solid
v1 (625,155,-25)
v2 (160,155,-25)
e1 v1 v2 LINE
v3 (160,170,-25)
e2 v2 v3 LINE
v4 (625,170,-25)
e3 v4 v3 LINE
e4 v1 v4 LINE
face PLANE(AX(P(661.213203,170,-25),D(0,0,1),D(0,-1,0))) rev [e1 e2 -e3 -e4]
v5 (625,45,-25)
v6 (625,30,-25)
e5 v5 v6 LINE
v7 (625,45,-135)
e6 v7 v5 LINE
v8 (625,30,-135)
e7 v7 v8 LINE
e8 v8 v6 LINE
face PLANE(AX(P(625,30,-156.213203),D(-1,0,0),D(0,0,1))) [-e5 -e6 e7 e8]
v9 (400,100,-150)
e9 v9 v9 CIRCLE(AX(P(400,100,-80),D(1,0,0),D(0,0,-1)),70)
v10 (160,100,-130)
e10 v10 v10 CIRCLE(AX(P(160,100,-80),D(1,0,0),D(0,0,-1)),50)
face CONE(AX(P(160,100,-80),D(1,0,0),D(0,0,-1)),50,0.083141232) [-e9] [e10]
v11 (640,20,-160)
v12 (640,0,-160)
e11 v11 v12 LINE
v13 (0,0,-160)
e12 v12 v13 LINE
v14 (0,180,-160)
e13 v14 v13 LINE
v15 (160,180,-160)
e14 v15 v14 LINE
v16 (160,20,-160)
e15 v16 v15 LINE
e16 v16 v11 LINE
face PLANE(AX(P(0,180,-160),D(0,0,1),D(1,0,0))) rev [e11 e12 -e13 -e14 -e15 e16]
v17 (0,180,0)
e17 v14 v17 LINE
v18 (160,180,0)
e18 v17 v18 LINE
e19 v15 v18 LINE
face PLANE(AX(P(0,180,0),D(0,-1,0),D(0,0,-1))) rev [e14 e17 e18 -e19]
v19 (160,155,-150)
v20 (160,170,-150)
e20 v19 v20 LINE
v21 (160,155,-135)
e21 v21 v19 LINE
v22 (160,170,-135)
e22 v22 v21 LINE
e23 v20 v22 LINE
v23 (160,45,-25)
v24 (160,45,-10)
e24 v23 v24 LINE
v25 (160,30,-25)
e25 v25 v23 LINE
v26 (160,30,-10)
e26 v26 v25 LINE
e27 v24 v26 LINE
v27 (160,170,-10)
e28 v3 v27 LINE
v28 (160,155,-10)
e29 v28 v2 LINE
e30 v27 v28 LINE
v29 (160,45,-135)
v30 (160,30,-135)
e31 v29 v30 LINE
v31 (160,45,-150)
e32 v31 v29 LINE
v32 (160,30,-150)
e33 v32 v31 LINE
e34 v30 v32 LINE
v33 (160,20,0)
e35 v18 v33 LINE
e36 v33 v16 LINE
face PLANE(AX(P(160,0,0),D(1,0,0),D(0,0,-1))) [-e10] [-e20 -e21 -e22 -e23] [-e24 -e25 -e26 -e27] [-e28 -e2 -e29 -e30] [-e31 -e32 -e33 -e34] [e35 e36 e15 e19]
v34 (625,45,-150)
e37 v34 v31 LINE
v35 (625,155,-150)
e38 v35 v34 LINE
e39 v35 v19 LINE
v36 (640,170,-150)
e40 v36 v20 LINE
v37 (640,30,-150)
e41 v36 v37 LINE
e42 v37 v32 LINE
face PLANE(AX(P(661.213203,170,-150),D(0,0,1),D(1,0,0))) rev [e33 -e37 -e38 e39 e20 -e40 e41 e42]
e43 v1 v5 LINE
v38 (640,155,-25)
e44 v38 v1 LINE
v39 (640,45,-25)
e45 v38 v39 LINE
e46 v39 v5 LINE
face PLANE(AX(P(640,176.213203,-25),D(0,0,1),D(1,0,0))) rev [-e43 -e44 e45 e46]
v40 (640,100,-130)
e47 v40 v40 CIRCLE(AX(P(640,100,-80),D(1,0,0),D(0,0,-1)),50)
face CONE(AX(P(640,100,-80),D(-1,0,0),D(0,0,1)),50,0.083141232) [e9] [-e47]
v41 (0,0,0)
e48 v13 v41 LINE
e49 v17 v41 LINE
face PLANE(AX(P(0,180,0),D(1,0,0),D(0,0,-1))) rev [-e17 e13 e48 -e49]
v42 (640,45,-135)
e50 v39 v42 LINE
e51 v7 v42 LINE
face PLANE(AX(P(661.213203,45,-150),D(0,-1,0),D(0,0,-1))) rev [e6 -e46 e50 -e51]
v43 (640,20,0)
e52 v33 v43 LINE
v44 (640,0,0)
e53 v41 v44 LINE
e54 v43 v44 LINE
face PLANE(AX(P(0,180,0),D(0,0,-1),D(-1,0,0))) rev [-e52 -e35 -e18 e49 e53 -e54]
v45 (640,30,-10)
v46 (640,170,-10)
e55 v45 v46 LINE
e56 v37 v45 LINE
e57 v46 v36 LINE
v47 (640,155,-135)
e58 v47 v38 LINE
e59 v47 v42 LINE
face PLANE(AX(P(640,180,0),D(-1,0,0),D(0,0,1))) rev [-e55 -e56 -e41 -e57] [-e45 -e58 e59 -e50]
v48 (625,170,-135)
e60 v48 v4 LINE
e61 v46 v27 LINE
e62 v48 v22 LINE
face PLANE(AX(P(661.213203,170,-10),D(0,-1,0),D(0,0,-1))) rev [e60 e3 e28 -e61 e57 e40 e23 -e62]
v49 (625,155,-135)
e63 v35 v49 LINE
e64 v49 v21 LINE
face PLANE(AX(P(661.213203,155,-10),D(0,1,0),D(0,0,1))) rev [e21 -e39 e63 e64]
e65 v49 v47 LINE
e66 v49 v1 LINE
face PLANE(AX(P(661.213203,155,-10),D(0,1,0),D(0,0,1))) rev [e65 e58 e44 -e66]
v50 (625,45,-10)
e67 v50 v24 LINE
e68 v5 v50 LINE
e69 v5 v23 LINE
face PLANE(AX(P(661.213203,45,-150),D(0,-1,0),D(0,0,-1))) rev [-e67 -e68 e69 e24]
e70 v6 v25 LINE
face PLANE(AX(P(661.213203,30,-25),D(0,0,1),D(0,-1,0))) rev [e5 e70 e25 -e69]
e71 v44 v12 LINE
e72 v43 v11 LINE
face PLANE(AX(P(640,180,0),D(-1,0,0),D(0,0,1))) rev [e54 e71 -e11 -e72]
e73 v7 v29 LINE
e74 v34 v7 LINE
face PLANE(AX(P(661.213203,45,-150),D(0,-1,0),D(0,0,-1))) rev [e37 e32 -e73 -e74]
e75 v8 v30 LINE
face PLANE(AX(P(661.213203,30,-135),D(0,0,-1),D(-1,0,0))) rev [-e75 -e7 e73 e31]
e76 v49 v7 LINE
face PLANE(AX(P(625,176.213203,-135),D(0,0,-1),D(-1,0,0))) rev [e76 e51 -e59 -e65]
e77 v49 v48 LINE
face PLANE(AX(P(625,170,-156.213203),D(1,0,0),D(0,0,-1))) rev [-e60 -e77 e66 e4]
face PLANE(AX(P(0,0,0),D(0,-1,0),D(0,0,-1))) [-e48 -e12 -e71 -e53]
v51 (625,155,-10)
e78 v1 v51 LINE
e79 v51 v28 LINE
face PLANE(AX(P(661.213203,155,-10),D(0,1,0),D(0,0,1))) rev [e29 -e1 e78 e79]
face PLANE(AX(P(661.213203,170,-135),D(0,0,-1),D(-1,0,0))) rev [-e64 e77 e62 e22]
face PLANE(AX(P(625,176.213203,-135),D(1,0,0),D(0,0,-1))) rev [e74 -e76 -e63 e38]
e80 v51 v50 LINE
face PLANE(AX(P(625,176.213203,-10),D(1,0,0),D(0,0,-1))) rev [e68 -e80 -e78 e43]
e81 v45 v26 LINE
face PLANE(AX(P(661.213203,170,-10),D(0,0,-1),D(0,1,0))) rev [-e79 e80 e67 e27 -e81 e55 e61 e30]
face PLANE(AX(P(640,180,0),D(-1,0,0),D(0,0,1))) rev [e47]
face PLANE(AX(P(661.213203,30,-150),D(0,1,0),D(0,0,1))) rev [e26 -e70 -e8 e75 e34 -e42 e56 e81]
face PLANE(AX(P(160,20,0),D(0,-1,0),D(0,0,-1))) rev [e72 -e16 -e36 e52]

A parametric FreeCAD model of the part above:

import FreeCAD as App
import Part
import Sketcher

V = App.Vector
Q = App.Units.Quantity


def add_polygon(sketch, points):
    """Adds a closed chain of lines whose ends are joined by coincident constraints."""
    first, n = sketch.GeometryCount, len(points)
    for a, b in zip(points, points[1:] + points[:1]):
        sketch.addGeometry(Part.LineSegment(App.Vector(*a, 0), App.Vector(*b, 0)), False)
    for i in range(n):
        sketch.addConstraint(Sketcher.Constraint("Coincident", first + i, 2, first + (i + 1) % n, 1))

doc = App.newDocument("Part")
body = doc.addObject("PartDesign::Body", "Body")

# Sketch on XZ plane
sketch1 = body.newObject("Sketcher::SketchObject", "Sketch")
sketch1.AttachmentSupport = (doc.getObject("XZ_Plane"), [""])
sketch1.MapMode = "FlatFace"
add_polygon(sketch1, [(0, -160), (0, 0), (640, 0), (640, -160)])  # lines 0-3
sketch1.addConstraint(Sketcher.Constraint("Vertical", 0))
sketch1.addConstraint(Sketcher.Constraint("Horizontal", 1))
sketch1.addConstraint(Sketcher.Constraint("Vertical", 2))
sketch1.addConstraint(Sketcher.Constraint("Horizontal", 3))
sketch1.addConstraint(Sketcher.Constraint("Coincident", 0, 2, -1, 1))
sketch1.addConstraint(Sketcher.Constraint("DistanceX", 1, 1, 1, 2, Q("640 mm")))
sketch1.addConstraint(Sketcher.Constraint("DistanceY", 0, 1, 0, 2, Q("160 mm")))
pad1 = body.newObject("PartDesign::Pad", "Pad")
pad1.Profile = sketch1
pad1.Length = 180
pad1.Reversed = True

# Sketch on YZ plane
sketch2 = body.newObject("Sketcher::SketchObject", "Sketch001")
sketch2.AttachmentSupport = (doc.getObject("YZ_Plane"), [""])
sketch2.MapMode = "FlatFace"
sketch2.AttachmentOffset = App.Placement(V(0, 0, 640), App.Rotation())
add_polygon(sketch2, [(180, 0), (20, 0), (20, -160), (180, -160)])  # lines 0-3
sketch2.addConstraint(Sketcher.Constraint("Horizontal", 0))
sketch2.addConstraint(Sketcher.Constraint("Vertical", 1))
sketch2.addConstraint(Sketcher.Constraint("Horizontal", 2))
sketch2.addConstraint(Sketcher.Constraint("Vertical", 3))
sketch2.addConstraint(Sketcher.Constraint("PointOnObject", 0, 2, -1))
sketch2.addConstraint(Sketcher.Constraint("Equal", 2, 1))
sketch2.addConstraint(Sketcher.Constraint("DistanceX", 0, 2, 0, 1, Q("160 mm")))
sketch2.addConstraint(Sketcher.Constraint("DistanceX", -1, 1, 0, 2, Q("20 mm")))
pocket1 = body.newObject("PartDesign::Pocket", "Pocket")
pocket1.Profile = sketch2
pocket1.Length = 480

# Sketch on YZ plane
sketch3 = body.newObject("Sketcher::SketchObject", "Sketch002")
sketch3.AttachmentSupport = (doc.getObject("YZ_Plane"), [""])
sketch3.MapMode = "FlatFace"
sketch3.AttachmentOffset = App.Placement(V(0, 0, 160), App.Rotation())
sketch3.addGeometry(Part.Circle(V(100, -80, 0), V(0, 0, 1), 70), False)
sketch3.addConstraint(Sketcher.Constraint("Diameter", 0, Q("140 mm")))
sketch3.addConstraint(Sketcher.Constraint("DistanceX", -1, 1, 0, 3, Q("100 mm")))
sketch3.addConstraint(Sketcher.Constraint("DistanceY", 0, 3, -1, 1, Q("80 mm")))
pad2 = body.newObject("PartDesign::Pad", "Pad001")
pad2.Profile = sketch3
pad2.Length = 480

# Sketch on XY plane
sketch4 = body.newObject("Sketcher::SketchObject", "Sketch003")
sketch4.AttachmentSupport = (doc.getObject("XY_Plane"), [""])
sketch4.MapMode = "FlatFace"
sketch4.AttachmentOffset = App.Placement(V(0, 0, -80), App.Rotation())
add_polygon(sketch4, [(160, 170), (160, 150), (400, 170)])  # lines 0-2
add_polygon(sketch4, [(400, 170), (640, 150), (640, 170)])  # lines 3-5
sketch4.addGeometry(Part.LineSegment(V(640, 100, 0), V(160, 100, 0)), True)  # axis
sketch4.addConstraint(Sketcher.Constraint("Vertical", 0))
sketch4.addConstraint(Sketcher.Constraint("Horizontal", 2))
sketch4.addConstraint(Sketcher.Constraint("Vertical", 4))
sketch4.addConstraint(Sketcher.Constraint("Horizontal", 5))
sketch4.addConstraint(Sketcher.Constraint("Horizontal", 6))
sketch4.addConstraint(Sketcher.Constraint("Coincident", 5, 2, 1, 2))
sketch4.addConstraint(Sketcher.Constraint("Horizontal", 0, 2, 3, 2))
sketch4.addConstraint(Sketcher.Constraint("Vertical", 4, 2, 6, 1))
sketch4.addConstraint(Sketcher.Constraint("Vertical", 2, 2, 6, 2))
sketch4.addConstraint(Sketcher.Constraint("Equal", 2, 5))
sketch4.addConstraint(Sketcher.Constraint("DistanceX", 2, 2, 2, 1, Q("240 mm")))
sketch4.addConstraint(Sketcher.Constraint("DistanceY", 0, 2, 0, 1, Q("20 mm")))
sketch4.addConstraint(Sketcher.Constraint("DistanceX", -1, 1, 0, 2, Q("160 mm")))
sketch4.addConstraint(Sketcher.Constraint("DistanceY", -1, 1, 0, 2, Q("150 mm")))
sketch4.addConstraint(Sketcher.Constraint("DistanceY", -1, 1, 6, 1, Q("100 mm")))
groove = body.newObject("PartDesign::Groove", "Groove")
groove.Profile = sketch4
groove.ReferenceAxis = (sketch4, ["Axis0"])
groove.Angle = 360

# Sketch on YZ plane
sketch5 = body.newObject("Sketcher::SketchObject", "Sketch004")
sketch5.AttachmentSupport = (doc.getObject("YZ_Plane"), [""])
sketch5.MapMode = "FlatFace"
sketch5.AttachmentOffset = App.Placement(V(0, 0, 160), App.Rotation())
add_polygon(sketch5, [(170, -10), (155, -10), (155, -25), (170, -25)])  # lines 0-3
add_polygon(sketch5, [(170, -135), (155, -135), (155, -150), (170, -150)])  # lines 4-7
add_polygon(sketch5, [(45, -135), (30, -135), (30, -150), (45, -150)])  # lines 8-11
add_polygon(sketch5, [(45, -10), (30, -10), (30, -25), (45, -25)])  # lines 12-15
sketch5.addConstraint(Sketcher.Constraint("Horizontal", 0))
sketch5.addConstraint(Sketcher.Constraint("Vertical", 1))
sketch5.addConstraint(Sketcher.Constraint("Horizontal", 2))
sketch5.addConstraint(Sketcher.Constraint("Vertical", 3))
sketch5.addConstraint(Sketcher.Constraint("Horizontal", 4))
sketch5.addConstraint(Sketcher.Constraint("Vertical", 5))
sketch5.addConstraint(Sketcher.Constraint("Horizontal", 6))
sketch5.addConstraint(Sketcher.Constraint("Vertical", 7))
sketch5.addConstraint(Sketcher.Constraint("Horizontal", 8))
sketch5.addConstraint(Sketcher.Constraint("Vertical", 9))
sketch5.addConstraint(Sketcher.Constraint("Horizontal", 10))
sketch5.addConstraint(Sketcher.Constraint("Vertical", 11))
sketch5.addConstraint(Sketcher.Constraint("Horizontal", 12))
sketch5.addConstraint(Sketcher.Constraint("Vertical", 13))
sketch5.addConstraint(Sketcher.Constraint("Horizontal", 14))
sketch5.addConstraint(Sketcher.Constraint("Vertical", 15))
sketch5.addConstraint(Sketcher.Constraint("Horizontal", 7, 2, 8, 2))
sketch5.addConstraint(Sketcher.Constraint("Horizontal", 6, 2, 9, 2))
sketch5.addConstraint(Sketcher.Constraint("Horizontal", 3, 2, 12, 2))
sketch5.addConstraint(Sketcher.Constraint("Horizontal", 2, 2, 13, 2))
sketch5.addConstraint(Sketcher.Constraint("Vertical", 1, 2, 4, 2))
sketch5.addConstraint(Sketcher.Constraint("Vertical", 3, 2, 6, 2))
sketch5.addConstraint(Sketcher.Constraint("Vertical", 9, 2, 12, 2))
sketch5.addConstraint(Sketcher.Constraint("Vertical", 11, 2, 14, 2))
sketch5.addConstraint(Sketcher.Constraint("Equal", 6, 8))
sketch5.addConstraint(Sketcher.Constraint("Equal", 14, 1))
sketch5.addConstraint(Sketcher.Constraint("Equal", 3, 5))
sketch5.addConstraint(Sketcher.Constraint("DistanceX", 0, 2, 0, 1, Q("15 mm")))
sketch5.addConstraint(Sketcher.Constraint("DistanceX", -1, 1, 0, 2, Q("155 mm")))
sketch5.addConstraint(Sketcher.Constraint("DistanceY", 0, 2, -1, 1, Q("10 mm")))
sketch5.addConstraint(Sketcher.Constraint("DistanceY", 4, 2, -1, 1, Q("135 mm")))
sketch5.addConstraint(Sketcher.Constraint("DistanceX", -1, 1, 8, 2, Q("30 mm")))
pad3 = body.newObject("PartDesign::Pad", "Pad002")
pad3.Profile = sketch5
pad3.Length = 480

# Sketch on XY plane
sketch6 = body.newObject("Sketcher::SketchObject", "Sketch005")
sketch6.AttachmentSupport = (doc.getObject("XY_Plane"), [""])
sketch6.MapMode = "FlatFace"
sketch6.AttachmentOffset = App.Placement(V(0, 0, -25), App.Rotation())
add_polygon(sketch6, [(640, 170), (640, 155), (625, 155), (625, 170)])  # lines 0-3
sketch6.addConstraint(Sketcher.Constraint("Vertical", 0))
sketch6.addConstraint(Sketcher.Constraint("Horizontal", 1))
sketch6.addConstraint(Sketcher.Constraint("Vertical", 2))
sketch6.addConstraint(Sketcher.Constraint("Horizontal", 3))
sketch6.addConstraint(Sketcher.Constraint("Equal", 3, 0))
sketch6.addConstraint(Sketcher.Constraint("DistanceX", 1, 2, 1, 1, Q("15 mm")))
sketch6.addConstraint(Sketcher.Constraint("DistanceX", -1, 1, 0, 2, Q("640 mm")))
sketch6.addConstraint(Sketcher.Constraint("DistanceY", -1, 1, 0, 2, Q("155 mm")))
pad4 = body.newObject("PartDesign::Pad", "Pad003")
pad4.Profile = sketch6
pad4.Length = 110
pad4.Reversed = True
doc.recompute()

datumplane = body.newObject("PartDesign::Plane", "DatumPlane")
datumplane.AttachmentSupport = (doc.getObject("XZ_Plane"), [""])
datumplane.MapMode = "FlatFace"
datumplane.AttachmentOffset = App.Placement(V(0, 0, -100), App.Rotation())
mirrored = body.newObject("PartDesign::Mirrored", "Mirrored")
mirrored.Originals = [pad4]
mirrored.MirrorPlane = (datumplane, [""])
body.Tip = mirrored

# Sketch on XZ plane
sketch7 = body.newObject("Sketcher::SketchObject", "Sketch006")
sketch7.AttachmentSupport = (doc.getObject("XZ_Plane"), [""])
sketch7.MapMode = "FlatFace"
sketch7.AttachmentOffset = App.Placement(V(0, 0, -45), App.Rotation())
add_polygon(sketch7, [(625, -25), (625, -10), (640, -10), (640, -25)])  # lines 0-3
add_polygon(sketch7, [(625, -150), (625, -135), (640, -135), (640, -150)])  # lines 4-7
sketch7.addConstraint(Sketcher.Constraint("Vertical", 0))
sketch7.addConstraint(Sketcher.Constraint("Horizontal", 1))
sketch7.addConstraint(Sketcher.Constraint("Vertical", 2))
sketch7.addConstraint(Sketcher.Constraint("Horizontal", 3))
sketch7.addConstraint(Sketcher.Constraint("Vertical", 4))
sketch7.addConstraint(Sketcher.Constraint("Horizontal", 5))
sketch7.addConstraint(Sketcher.Constraint("Vertical", 6))
sketch7.addConstraint(Sketcher.Constraint("Horizontal", 7))
sketch7.addConstraint(Sketcher.Constraint("Vertical", 3, 2, 4, 2))
sketch7.addConstraint(Sketcher.Constraint("Vertical", 2, 2, 5, 2))
sketch7.addConstraint(Sketcher.Constraint("Equal", 7, 0))
sketch7.addConstraint(Sketcher.Constraint("Equal", 2, 4))
sketch7.addConstraint(Sketcher.Constraint("DistanceX", 1, 1, 1, 2, Q("15 mm")))
sketch7.addConstraint(Sketcher.Constraint("DistanceX", -1, 1, 0, 2, Q("625 mm")))
sketch7.addConstraint(Sketcher.Constraint("DistanceY", 0, 2, -1, 1, Q("10 mm")))
sketch7.addConstraint(Sketcher.Constraint("DistanceY", 4, 2, -1, 1, Q("135 mm")))
pad5 = body.newObject("PartDesign::Pad", "Pad004")
pad5.Profile = sketch7
pad5.Length = 110
pad5.Reversed = True

doc.recompute()
